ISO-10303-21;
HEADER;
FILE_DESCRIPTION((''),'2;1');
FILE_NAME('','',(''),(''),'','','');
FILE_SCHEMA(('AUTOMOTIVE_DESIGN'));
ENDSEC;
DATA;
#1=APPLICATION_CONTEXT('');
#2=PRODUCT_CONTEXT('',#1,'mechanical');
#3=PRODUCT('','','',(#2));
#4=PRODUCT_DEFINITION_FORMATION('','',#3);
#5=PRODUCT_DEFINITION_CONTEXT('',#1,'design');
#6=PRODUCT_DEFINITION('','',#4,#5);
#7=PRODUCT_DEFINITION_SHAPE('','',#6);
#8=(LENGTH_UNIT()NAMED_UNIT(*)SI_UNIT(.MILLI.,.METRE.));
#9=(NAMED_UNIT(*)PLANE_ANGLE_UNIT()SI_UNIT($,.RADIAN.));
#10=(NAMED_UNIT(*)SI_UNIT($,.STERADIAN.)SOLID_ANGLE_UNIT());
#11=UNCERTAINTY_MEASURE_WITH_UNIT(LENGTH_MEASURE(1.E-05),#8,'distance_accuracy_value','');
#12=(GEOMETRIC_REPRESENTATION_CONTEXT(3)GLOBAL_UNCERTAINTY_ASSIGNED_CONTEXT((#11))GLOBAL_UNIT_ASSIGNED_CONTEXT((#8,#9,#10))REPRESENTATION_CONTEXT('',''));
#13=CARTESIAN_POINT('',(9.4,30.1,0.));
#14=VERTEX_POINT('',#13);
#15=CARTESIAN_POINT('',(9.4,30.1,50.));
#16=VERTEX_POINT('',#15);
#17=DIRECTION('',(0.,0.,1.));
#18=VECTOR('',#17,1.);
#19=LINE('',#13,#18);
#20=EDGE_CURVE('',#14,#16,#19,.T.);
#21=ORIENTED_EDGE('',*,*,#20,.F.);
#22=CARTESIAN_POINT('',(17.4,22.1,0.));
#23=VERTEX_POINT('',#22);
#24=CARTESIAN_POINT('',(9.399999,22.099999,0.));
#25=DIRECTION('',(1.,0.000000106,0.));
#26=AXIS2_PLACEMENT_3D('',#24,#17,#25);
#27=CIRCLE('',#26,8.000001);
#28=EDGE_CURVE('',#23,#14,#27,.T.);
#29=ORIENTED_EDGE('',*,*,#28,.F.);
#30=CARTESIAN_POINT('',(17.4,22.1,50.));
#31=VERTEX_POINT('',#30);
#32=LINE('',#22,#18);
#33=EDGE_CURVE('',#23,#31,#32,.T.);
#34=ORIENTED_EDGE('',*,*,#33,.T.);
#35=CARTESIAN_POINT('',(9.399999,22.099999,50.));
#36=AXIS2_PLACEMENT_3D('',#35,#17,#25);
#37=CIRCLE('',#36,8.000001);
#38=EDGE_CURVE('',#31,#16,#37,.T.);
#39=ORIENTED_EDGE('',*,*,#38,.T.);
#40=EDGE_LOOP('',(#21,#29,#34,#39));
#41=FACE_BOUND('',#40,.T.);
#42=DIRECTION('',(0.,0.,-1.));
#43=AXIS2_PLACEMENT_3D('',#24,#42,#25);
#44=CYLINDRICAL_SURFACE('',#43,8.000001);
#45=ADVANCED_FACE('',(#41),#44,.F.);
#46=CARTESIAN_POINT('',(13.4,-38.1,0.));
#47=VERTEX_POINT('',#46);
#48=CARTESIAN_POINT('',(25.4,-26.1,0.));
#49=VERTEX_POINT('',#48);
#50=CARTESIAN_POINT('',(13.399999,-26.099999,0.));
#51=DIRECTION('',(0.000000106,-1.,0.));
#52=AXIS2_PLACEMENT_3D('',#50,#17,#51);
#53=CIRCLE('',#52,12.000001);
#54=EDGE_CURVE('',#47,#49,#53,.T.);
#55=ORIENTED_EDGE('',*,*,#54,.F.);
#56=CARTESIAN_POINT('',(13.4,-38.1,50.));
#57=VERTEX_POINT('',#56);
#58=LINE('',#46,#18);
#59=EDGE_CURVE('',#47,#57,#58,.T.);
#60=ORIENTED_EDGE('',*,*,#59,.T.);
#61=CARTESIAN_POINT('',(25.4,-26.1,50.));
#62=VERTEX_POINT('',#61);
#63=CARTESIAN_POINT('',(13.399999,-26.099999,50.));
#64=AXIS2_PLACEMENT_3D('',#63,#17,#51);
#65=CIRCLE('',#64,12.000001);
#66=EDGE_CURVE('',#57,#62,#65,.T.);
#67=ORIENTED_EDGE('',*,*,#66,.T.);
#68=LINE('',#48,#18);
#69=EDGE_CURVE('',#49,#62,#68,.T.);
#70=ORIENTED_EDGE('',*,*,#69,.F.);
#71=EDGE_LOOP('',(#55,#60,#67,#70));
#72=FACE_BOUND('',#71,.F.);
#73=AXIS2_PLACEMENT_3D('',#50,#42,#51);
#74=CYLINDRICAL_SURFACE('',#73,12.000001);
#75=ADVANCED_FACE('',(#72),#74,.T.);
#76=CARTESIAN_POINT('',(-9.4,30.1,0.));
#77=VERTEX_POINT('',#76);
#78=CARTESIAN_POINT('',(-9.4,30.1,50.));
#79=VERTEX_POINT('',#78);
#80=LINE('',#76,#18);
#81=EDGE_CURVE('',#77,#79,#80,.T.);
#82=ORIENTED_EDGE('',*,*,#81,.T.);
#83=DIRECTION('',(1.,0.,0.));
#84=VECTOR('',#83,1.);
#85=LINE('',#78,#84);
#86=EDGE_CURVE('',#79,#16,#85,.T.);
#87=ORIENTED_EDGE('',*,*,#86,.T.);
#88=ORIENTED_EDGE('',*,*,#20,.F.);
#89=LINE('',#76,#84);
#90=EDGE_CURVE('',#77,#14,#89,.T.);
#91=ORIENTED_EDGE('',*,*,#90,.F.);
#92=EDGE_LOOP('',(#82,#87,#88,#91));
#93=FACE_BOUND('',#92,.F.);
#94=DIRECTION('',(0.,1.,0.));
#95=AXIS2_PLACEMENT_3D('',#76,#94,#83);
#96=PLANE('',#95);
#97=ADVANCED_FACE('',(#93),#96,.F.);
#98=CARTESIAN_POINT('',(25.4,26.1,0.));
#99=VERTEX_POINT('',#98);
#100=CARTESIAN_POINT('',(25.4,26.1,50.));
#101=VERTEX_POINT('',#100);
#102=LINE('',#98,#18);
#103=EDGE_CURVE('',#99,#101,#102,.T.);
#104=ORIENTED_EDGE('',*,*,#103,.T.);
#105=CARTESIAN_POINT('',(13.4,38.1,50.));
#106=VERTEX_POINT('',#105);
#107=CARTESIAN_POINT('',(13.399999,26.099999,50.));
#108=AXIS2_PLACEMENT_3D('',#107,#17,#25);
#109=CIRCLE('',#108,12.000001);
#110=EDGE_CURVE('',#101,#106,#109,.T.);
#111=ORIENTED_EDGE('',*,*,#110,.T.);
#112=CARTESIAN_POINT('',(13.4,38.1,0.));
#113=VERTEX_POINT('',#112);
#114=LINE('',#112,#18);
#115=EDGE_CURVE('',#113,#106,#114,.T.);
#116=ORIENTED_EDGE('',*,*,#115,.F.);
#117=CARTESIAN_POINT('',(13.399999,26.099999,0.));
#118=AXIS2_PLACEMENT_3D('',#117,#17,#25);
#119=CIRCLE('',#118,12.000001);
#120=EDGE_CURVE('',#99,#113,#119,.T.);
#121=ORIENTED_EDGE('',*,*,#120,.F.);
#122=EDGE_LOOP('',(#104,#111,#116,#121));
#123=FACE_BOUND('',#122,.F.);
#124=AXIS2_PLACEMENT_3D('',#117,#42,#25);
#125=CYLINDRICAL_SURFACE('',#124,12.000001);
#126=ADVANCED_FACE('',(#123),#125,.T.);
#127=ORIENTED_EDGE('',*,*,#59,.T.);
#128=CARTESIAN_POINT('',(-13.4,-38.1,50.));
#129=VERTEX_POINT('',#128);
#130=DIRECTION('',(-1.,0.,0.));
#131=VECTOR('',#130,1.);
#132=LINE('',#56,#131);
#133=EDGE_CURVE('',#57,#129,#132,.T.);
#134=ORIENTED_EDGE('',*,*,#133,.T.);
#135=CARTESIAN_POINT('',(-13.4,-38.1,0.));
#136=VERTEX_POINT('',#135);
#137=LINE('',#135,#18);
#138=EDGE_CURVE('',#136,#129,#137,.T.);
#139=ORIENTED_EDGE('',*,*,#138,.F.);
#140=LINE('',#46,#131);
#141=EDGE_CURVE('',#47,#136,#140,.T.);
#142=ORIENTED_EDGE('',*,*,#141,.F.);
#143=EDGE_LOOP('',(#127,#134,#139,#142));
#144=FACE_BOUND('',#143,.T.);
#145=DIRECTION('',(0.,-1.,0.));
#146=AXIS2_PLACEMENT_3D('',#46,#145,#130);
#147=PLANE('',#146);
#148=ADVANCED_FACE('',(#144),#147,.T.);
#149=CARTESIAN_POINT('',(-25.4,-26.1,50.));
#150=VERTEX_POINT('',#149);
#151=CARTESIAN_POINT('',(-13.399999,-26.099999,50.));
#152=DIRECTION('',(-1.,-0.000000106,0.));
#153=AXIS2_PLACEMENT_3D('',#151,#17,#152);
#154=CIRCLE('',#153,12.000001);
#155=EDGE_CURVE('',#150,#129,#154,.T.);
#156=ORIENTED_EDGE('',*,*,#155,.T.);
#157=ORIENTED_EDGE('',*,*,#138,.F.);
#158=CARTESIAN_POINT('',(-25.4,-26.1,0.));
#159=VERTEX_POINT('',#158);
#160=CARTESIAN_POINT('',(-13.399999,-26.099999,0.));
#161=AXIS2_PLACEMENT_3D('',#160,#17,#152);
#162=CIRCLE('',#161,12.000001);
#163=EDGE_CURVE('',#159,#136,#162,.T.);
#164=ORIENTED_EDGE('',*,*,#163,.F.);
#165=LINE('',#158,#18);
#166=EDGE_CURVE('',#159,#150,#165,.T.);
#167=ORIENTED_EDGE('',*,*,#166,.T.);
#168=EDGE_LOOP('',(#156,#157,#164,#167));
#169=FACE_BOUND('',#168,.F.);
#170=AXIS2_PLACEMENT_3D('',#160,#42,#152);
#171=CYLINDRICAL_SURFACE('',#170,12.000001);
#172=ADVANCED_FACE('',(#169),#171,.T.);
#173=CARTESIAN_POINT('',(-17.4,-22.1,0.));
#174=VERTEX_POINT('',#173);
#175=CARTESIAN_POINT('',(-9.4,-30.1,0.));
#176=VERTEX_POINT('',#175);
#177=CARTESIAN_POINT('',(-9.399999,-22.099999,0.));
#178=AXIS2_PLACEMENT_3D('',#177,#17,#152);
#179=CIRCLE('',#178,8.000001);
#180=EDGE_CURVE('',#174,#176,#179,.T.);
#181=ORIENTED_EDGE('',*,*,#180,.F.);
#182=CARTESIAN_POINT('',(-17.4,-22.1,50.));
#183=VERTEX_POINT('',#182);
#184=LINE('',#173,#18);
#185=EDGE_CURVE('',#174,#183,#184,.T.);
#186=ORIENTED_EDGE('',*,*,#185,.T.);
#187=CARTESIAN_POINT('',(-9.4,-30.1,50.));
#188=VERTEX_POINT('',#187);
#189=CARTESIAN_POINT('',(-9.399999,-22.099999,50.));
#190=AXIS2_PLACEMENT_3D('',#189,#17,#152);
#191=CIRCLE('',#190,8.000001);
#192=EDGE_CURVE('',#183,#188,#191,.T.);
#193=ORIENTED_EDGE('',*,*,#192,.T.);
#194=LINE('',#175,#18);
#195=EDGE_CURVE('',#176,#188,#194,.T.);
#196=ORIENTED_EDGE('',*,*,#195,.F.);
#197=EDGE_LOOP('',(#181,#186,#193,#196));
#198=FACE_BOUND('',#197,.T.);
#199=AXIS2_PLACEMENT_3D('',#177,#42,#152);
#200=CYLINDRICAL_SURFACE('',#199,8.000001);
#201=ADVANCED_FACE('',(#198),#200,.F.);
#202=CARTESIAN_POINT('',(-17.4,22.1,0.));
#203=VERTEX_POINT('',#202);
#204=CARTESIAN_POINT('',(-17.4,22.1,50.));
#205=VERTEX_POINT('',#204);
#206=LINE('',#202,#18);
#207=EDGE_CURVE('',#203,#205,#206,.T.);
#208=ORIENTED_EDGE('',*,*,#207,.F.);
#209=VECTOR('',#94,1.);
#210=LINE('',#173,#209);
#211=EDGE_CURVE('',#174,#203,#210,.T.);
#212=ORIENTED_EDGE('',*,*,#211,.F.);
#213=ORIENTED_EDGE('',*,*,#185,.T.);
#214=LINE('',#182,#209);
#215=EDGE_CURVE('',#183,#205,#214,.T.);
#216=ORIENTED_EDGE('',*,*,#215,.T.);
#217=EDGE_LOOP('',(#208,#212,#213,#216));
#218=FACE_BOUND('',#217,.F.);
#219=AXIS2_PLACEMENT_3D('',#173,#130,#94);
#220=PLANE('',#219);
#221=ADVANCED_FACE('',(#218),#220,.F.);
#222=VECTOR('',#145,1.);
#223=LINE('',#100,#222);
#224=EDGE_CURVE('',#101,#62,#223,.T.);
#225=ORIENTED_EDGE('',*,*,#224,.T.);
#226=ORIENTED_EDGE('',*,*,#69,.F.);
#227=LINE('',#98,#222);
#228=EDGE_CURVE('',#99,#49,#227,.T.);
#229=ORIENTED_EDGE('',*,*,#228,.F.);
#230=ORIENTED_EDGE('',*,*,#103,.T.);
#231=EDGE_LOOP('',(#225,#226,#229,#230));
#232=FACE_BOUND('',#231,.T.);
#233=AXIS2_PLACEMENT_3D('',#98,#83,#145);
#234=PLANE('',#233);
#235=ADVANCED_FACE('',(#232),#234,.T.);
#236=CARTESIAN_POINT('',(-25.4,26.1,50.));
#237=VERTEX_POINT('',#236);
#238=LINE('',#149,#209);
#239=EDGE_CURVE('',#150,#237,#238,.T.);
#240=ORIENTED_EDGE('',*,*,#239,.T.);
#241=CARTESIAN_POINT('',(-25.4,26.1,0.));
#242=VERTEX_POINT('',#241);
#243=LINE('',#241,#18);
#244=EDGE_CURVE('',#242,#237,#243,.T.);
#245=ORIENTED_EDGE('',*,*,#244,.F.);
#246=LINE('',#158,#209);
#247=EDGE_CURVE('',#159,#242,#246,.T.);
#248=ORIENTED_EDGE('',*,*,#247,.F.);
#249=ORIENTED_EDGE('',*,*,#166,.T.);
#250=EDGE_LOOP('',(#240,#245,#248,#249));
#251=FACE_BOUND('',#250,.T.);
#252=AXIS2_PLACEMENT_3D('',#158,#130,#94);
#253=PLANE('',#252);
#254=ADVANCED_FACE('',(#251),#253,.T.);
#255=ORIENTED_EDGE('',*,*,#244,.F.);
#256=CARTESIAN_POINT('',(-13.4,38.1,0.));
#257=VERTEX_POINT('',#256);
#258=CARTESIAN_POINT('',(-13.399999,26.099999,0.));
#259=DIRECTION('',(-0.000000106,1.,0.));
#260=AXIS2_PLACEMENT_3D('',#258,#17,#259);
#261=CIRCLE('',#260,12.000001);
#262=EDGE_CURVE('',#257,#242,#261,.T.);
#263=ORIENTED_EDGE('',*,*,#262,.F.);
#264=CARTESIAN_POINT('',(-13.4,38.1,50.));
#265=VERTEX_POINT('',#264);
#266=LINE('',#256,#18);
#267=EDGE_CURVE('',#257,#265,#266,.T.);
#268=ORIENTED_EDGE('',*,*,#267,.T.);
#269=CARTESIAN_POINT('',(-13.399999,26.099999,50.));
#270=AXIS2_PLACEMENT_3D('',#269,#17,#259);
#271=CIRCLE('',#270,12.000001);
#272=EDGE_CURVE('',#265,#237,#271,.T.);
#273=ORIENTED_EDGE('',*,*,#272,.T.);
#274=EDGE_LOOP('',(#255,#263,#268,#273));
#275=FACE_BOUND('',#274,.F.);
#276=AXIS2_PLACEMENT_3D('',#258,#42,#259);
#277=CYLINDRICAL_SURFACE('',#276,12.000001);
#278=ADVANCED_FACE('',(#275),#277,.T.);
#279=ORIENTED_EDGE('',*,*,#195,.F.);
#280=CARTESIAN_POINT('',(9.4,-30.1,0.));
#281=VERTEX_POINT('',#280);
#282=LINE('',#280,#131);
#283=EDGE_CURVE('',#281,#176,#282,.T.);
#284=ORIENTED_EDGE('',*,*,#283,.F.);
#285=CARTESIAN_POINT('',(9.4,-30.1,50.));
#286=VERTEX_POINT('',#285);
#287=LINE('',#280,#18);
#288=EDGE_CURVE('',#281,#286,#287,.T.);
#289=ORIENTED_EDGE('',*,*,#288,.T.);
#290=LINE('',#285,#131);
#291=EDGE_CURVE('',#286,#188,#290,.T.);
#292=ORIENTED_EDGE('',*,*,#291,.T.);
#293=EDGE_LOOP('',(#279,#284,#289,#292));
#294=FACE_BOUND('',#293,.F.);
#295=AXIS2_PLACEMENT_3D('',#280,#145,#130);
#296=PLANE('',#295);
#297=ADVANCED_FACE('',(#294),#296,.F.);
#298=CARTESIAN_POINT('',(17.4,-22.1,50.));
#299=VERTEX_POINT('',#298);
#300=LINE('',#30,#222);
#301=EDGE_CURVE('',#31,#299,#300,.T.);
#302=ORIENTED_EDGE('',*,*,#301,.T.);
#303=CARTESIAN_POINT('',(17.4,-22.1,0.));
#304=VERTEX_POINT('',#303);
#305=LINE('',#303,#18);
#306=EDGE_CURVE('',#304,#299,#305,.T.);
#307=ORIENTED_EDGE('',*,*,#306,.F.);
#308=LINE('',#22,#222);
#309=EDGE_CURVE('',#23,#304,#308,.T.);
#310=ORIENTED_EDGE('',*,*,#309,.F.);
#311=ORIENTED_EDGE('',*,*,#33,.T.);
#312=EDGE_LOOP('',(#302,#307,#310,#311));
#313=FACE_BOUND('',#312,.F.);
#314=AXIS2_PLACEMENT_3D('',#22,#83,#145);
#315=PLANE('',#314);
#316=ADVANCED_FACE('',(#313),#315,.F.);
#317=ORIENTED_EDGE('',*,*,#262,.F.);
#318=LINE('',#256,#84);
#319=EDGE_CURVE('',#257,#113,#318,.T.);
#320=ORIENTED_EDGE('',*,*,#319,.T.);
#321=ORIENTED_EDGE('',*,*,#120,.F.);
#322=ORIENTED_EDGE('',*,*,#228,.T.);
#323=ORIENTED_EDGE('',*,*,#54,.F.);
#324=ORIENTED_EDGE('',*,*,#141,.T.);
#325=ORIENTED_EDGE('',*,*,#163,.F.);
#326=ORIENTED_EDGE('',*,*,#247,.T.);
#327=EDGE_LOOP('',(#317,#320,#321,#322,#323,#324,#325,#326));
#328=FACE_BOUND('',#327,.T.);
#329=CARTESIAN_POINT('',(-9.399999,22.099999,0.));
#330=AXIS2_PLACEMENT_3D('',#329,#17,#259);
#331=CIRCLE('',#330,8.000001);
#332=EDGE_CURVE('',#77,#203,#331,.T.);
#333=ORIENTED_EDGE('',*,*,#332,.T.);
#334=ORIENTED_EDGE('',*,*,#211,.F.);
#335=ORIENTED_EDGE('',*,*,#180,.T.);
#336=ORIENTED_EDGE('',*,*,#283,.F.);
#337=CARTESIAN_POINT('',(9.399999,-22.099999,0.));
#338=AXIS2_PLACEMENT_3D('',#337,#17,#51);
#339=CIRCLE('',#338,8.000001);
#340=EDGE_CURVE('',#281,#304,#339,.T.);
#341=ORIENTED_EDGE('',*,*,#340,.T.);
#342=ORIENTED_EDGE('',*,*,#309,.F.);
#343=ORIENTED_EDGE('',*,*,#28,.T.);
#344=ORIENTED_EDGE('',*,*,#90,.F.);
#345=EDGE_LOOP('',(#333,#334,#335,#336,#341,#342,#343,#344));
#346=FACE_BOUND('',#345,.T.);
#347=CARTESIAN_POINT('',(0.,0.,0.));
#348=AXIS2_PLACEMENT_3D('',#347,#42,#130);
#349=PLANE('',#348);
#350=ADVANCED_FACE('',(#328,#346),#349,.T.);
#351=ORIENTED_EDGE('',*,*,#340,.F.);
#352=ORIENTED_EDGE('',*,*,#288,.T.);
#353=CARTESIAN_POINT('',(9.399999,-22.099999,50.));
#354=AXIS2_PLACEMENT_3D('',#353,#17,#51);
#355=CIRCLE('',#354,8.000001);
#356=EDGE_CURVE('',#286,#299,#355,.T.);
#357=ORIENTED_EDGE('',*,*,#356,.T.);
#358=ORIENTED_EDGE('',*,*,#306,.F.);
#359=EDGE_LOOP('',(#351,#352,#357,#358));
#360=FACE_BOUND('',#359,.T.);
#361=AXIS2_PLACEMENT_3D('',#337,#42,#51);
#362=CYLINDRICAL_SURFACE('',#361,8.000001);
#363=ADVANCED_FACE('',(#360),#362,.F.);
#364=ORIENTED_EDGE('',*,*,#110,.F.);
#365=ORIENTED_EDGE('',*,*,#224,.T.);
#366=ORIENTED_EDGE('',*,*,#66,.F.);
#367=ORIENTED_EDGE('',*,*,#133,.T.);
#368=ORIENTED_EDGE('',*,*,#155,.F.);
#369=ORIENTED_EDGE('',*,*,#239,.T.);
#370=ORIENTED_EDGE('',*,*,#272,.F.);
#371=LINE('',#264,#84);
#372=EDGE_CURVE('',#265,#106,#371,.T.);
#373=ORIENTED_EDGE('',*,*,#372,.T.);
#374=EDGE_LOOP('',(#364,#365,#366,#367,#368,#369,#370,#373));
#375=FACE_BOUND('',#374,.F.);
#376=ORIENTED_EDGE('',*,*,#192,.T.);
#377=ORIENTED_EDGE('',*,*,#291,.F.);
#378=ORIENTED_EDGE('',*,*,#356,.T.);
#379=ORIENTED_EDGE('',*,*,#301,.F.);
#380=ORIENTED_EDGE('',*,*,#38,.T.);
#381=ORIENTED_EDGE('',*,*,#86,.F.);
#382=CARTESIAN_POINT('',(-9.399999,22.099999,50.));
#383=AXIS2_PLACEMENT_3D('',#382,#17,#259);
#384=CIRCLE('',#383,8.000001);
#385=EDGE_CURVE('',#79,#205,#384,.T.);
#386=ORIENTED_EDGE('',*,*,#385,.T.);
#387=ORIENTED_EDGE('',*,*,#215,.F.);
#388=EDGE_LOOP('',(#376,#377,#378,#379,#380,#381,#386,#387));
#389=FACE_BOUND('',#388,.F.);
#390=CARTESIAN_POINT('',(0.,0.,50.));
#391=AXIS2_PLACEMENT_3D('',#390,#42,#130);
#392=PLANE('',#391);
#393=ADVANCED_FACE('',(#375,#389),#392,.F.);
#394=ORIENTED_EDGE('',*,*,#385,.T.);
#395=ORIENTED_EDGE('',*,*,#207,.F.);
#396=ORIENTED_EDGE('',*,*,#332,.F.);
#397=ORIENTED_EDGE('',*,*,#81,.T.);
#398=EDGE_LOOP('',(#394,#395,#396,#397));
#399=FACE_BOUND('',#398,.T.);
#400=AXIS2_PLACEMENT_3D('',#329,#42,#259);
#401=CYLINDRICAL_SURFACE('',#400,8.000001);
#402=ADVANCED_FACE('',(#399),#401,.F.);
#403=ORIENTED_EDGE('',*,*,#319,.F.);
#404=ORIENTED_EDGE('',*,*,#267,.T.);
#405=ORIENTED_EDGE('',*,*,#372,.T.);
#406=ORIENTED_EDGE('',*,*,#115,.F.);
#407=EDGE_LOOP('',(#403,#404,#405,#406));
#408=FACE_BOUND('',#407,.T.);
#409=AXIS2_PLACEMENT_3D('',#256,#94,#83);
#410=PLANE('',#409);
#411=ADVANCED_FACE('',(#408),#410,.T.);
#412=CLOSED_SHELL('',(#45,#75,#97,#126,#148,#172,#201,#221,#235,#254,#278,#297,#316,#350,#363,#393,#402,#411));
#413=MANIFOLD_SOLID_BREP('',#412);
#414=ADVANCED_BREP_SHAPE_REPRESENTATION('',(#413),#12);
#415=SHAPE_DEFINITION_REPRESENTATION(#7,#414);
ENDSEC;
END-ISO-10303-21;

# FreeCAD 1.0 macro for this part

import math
import FreeCAD as App
import Part
import Sketcher

V = App.Vector

doc = App.newDocument("Part")
params = doc.addObject("Spreadsheet::Sheet", "Params")
for row, (alias, value) in enumerate([
    ("sketch1_radius", "12.000001 mm"),
    ("sketch1_radius2", "8.000001 mm"),
    ("sketch1_width", "26.8 mm"),
    ("sketch1_width2", "18.8 mm"),
    ("sketch1_height", "52.2 mm"),
    ("pad1_length", "50 mm"),
], start=1):
    params.set(f"A{row}", alias)
    params.set(f"B{row}", "=" + value)
    params.setAlias(f"B{row}", alias)

body = doc.addObject("PartDesign::Body", "Body")

sketch1 = doc.addObject("Sketcher::SketchObject", "Sketch")
body.addObject(sketch1)
sketch1.AttachmentSupport = (doc.XY_Plane, [""])
sketch1.MapMode = "FlatFace"
sketch1.addGeometry([
    Part.LineSegment(V(13.4, 38.1, 0), V(-13.4, 38.1, 0)),
    Part.ArcOfCircle(Part.Circle(V(-13.399999, 26.099999, 0), V(0, 0, 1), 12.000001), math.radians(90.000006), math.radians(179.999994)),
    Part.LineSegment(V(-25.4, 26.1, 0), V(-25.4, -26.1, 0)),
    Part.ArcOfCircle(Part.Circle(V(-13.399999, -26.099999, 0), V(0, 0, 1), 12.000001), math.radians(-179.999994), math.radians(-90.000006)),
    Part.LineSegment(V(-13.4, -38.1, 0), V(13.4, -38.1, 0)),
    Part.ArcOfCircle(Part.Circle(V(13.399999, -26.099999, 0), V(0, 0, 1), 12.000001), math.radians(-89.999994), math.radians(-0.000006)),
    Part.LineSegment(V(25.4, -26.1, 0), V(25.4, 26.1, 0)),
    Part.ArcOfCircle(Part.Circle(V(13.399999, 26.099999, 0), V(0, 0, 1), 12.000001), math.radians(0.000006), math.radians(89.999994)),
    Part.LineSegment(V(-9.4, 30.1, 0), V(9.4, 30.1, 0)),
    Part.ArcOfCircle(Part.Circle(V(9.399999, 22.099999, 0), V(0, 0, 1), 8.000001), math.radians(0.000006), math.radians(89.999994)),
    Part.LineSegment(V(17.4, 22.1, 0), V(17.4, -22.1, 0)),
    Part.ArcOfCircle(Part.Circle(V(9.399999, -22.099999, 0), V(0, 0, 1), 8.000001), math.radians(-89.999994), math.radians(-0.000006)),
    Part.LineSegment(V(9.4, -30.1, 0), V(-9.4, -30.1, 0)),
    Part.ArcOfCircle(Part.Circle(V(-9.399999, -22.099999, 0), V(0, 0, 1), 8.000001), math.radians(-179.999994), math.radians(-90.000006)),
    Part.LineSegment(V(-17.4, -22.1, 0), V(-17.4, 22.1, 0)),
    Part.ArcOfCircle(Part.Circle(V(-9.399999, 22.099999, 0), V(0, 0, 1), 8.000001), math.radians(90.000006), math.radians(179.999994)),
], False)
sketch1.addConstraint([
    Sketcher.Constraint("Tangent", 0, 2, 1, 1),
    Sketcher.Constraint("Tangent", 1, 2, 2, 1),
    Sketcher.Constraint("Tangent", 2, 2, 3, 1),
    Sketcher.Constraint("Tangent", 3, 2, 4, 1),
    Sketcher.Constraint("Tangent", 4, 2, 5, 1),
    Sketcher.Constraint("Tangent", 5, 2, 6, 1),
    Sketcher.Constraint("Tangent", 6, 2, 7, 1),
    Sketcher.Constraint("Tangent", 7, 2, 0, 1),
    Sketcher.Constraint("Tangent", 8, 2, 9, 2),
    Sketcher.Constraint("Tangent", 9, 1, 10, 1),
    Sketcher.Constraint("Tangent", 10, 2, 11, 2),
    Sketcher.Constraint("Tangent", 11, 1, 12, 1),
    Sketcher.Constraint("Tangent", 12, 2, 13, 2),
    Sketcher.Constraint("Tangent", 13, 1, 14, 1),
    Sketcher.Constraint("Tangent", 14, 2, 15, 2),
    Sketcher.Constraint("Tangent", 15, 1, 8, 1),
    Sketcher.Constraint("Horizontal", 0),
    Sketcher.Constraint("Vertical", 2),
    Sketcher.Constraint("Horizontal", 4),
    Sketcher.Constraint("Vertical", 6),
    Sketcher.Constraint("Horizontal", 8),
    Sketcher.Constraint("Vertical", 10),
    Sketcher.Constraint("Horizontal", 12),
    Sketcher.Constraint("Vertical", 14),
    Sketcher.Constraint("Equal", 1, 3),
    Sketcher.Constraint("Equal", 3, 5),
    Sketcher.Constraint("Equal", 5, 7),
    Sketcher.Constraint("Equal", 9, 11),
    Sketcher.Constraint("Equal", 11, 13),
    Sketcher.Constraint("Equal", 13, 15),
    Sketcher.Constraint("Symmetric", 1, 3, 5, 3, -1, 1),
    Sketcher.Constraint("Symmetric", 9, 3, 13, 3, -1, 1),
    Sketcher.Constraint("Radius", 1, 12.000001),
    Sketcher.Constraint("Radius", 9, 8.000001),
    Sketcher.Constraint("DistanceX", 0, 2, 0, 1, 26.8),
    Sketcher.Constraint("DistanceX", 8, 1, 8, 2, 18.8),
    Sketcher.Constraint("DistanceY", 2, 2, 2, 1, 52.2),
    Sketcher.Constraint("DistanceY", 10, 2, 10, 1, 44.2),
])
sketch1.setExpression("Constraints[32]", "Params.sketch1_radius")
sketch1.setExpression("Constraints[33]", "Params.sketch1_radius2")
sketch1.setExpression("Constraints[34]", "Params.sketch1_width")
sketch1.setExpression("Constraints[35]", "Params.sketch1_width2")
sketch1.setExpression("Constraints[36]", "Params.sketch1_height")
pad1 = doc.addObject("PartDesign::Pad", "Pad")
body.addObject(pad1)
pad1.Profile = sketch1
pad1.setExpression("Length", "Params.pad1_length")

doc.recompute()
